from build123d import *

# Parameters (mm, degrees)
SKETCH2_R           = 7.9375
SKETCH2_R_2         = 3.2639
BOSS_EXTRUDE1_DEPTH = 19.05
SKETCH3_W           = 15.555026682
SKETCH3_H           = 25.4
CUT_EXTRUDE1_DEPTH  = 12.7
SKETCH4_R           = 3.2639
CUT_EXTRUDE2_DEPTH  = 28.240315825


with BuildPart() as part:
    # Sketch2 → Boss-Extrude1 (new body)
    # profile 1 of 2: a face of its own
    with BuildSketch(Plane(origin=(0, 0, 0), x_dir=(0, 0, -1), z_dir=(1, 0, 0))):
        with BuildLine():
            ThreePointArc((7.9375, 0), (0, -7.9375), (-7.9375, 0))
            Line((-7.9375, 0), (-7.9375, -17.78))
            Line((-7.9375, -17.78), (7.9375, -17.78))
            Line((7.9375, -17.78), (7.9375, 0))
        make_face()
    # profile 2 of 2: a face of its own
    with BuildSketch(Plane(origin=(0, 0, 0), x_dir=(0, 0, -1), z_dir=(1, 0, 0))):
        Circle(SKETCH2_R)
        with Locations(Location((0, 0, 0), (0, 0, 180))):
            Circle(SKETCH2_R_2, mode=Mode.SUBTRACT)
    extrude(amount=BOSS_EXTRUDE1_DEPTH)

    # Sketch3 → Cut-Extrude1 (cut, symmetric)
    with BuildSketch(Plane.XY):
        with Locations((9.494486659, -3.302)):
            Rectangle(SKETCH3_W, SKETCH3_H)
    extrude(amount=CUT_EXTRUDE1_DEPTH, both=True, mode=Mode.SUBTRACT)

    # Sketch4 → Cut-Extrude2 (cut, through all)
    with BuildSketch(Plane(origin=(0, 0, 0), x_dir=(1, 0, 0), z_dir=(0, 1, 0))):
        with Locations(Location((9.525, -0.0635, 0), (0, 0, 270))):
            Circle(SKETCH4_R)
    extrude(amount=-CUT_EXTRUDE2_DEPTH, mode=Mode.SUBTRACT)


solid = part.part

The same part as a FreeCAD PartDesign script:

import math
import FreeCAD as App
import Part
import Sketcher
Q = App.Units.Quantity


def add_polygon(sketch, points):
    """Adds a closed chain of lines whose ends are joined by coincident constraints."""
    first, n = sketch.GeometryCount, len(points)
    for a, b in zip(points, points[1:] + points[:1]):
        sketch.addGeometry(Part.LineSegment(App.Vector(*a, 0), App.Vector(*b, 0)), False)
    for i in range(n):
        sketch.addConstraint(Sketcher.Constraint("Coincident", first + i, 2, first + (i + 1) % n, 1))

doc = App.newDocument("Part")
body = doc.addObject("PartDesign::Body", "Body")

# Sketch on YZ plane
sketch1 = body.newObject("Sketcher::SketchObject", "Sketch")
sketch1.AttachmentSupport = (doc.getObject("YZ_Plane"), [""])
sketch1.MapMode = "FlatFace"
sketch1.addGeometry([
    Part.LineSegment(App.Vector(0, 7.9, 0), App.Vector(-17.8, 7.9, 0)),  # 0
    Part.LineSegment(App.Vector(-17.8, 7.9, 0), App.Vector(-17.8, -7.9, 0)),  # 1
    Part.LineSegment(App.Vector(-17.8, -7.9, 0), App.Vector(0, -7.9, 0)),  # 2
    Part.ArcOfCircle(Part.Circle(App.Vector(0, 0, 0), App.Vector(0, 0, 1), 7.9), math.radians(-90), math.radians(90)),  # 3
    Part.Circle(App.Vector(0, 0, 0), App.Vector(0, 0, 1), 3.3),  # 4
], False)
sketch1.addConstraint([
    Sketcher.Constraint("Coincident", 0, 2, 1, 1),
    Sketcher.Constraint("Coincident", 1, 2, 2, 1),
    Sketcher.Constraint("Tangent", 2, 2, 3, 1),
    Sketcher.Constraint("Tangent", 3, 2, 0, 1),
    Sketcher.Constraint("Horizontal", 0),
    Sketcher.Constraint("Vertical", 1),
    Sketcher.Constraint("Horizontal", 2),
    Sketcher.Constraint("Coincident", 3, 3, -1, 1),
    Sketcher.Constraint("Coincident", 4, 3, -1, 1),
    Sketcher.Constraint("Diameter", 4, Q("0.257 in")),
    Sketcher.Constraint("DistanceX", 0, 2, 0, 1, Q("0.7 in")),
    Sketcher.Constraint("Radius", 3, Q("0.3125 in")),
])
pad1 = body.newObject("PartDesign::Pad", "Pad")
pad1.Profile = sketch1
pad1.Length = Q("0.75 in")

# Sketch on XY plane
sketch2 = body.newObject("Sketcher::SketchObject", "Sketch001")
sketch2.AttachmentSupport = (doc.getObject("XY_Plane"), [""])
sketch2.MapMode = "FlatFace"
add_polygon(sketch2, [(2, 9), (2, -16), (17, -16), (17, 9)])  # lines 0-3
sketch2.addConstraint([
    Sketcher.Constraint("Vertical", 0),
    Sketcher.Constraint("Horizontal", 1),
    Sketcher.Constraint("Vertical", 2),
    Sketcher.Constraint("Horizontal", 3),
    Sketcher.Constraint("DistanceY", 0, 2, 0, 1, Q("1 in")),
    Sketcher.Constraint("DistanceY", 0, 2, -1, 1, Q("0.63 in")),
    Sketcher.Constraint("DistanceX", -1, 1, 1, 2, Q("0.68 in")),
    Sketcher.Constraint("DistanceX", 1, 1, 1, 2, Q("15.555027 mm")),
])
pocket1 = body.newObject("PartDesign::Pocket", "Pocket")
pocket1.Profile = sketch2
pocket1.Length = Q("1 in")
pocket1.Midplane = True

# Sketch on XZ plane
sketch3 = body.newObject("Sketcher::SketchObject", "Sketch002")
sketch3.AttachmentSupport = (doc.getObject("XZ_Plane"), [""])
sketch3.MapMode = "FlatFace"
sketch3.addGeometry(Part.Circle(App.Vector(9.5, 0.1, 0), App.Vector(0, 0, 1), 3.3), False)
sketch3.addConstraint([
    Sketcher.Constraint("Diameter", 0, Q("0.257 in")),
    Sketcher.Constraint("DistanceX", -1, 1, 0, 3, Q("0.375 in")),
    Sketcher.Constraint("DistanceY", -1, 1, 0, 3, Q("0.0025 in")),
])
pocket2 = body.newObject("PartDesign::Pocket", "Pocket001")
pocket2.Profile = sketch3
pocket2.Type = "ThroughAll"
pocket2.Reversed = True

doc.recompute()
